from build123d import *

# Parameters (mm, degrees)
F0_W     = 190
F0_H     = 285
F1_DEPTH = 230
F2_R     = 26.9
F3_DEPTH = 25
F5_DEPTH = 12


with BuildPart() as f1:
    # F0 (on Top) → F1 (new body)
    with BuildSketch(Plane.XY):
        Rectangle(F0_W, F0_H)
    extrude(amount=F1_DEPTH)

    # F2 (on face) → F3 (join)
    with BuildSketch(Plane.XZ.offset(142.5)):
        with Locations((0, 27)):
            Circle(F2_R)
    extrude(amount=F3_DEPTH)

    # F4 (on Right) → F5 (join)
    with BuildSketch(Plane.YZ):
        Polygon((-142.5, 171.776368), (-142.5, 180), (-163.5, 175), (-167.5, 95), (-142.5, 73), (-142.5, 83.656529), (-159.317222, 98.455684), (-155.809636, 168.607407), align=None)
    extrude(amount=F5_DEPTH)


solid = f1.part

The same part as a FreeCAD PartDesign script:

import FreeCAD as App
import Part
import Sketcher
from FreeCAD import Vector
Q = App.Units.Quantity

doc = App.newDocument("Part")
params = doc.addObject("Spreadsheet::Sheet", "Params")
for row, (alias, value) in enumerate([
    ("sketch1_width", "190 mm"),
    ("sketch1_height", "285 mm"),
    ("pad1_length", "230 mm"),
    ("sketch2_diameter", "53.8 mm"),
    ("pad2_length", "25 mm"),
    ("pad3_length", "12 mm"),
], start=1):
    params.set(f"A{row}", alias)
    params.set(f"B{row}", "=" + value)
    params.setAlias(f"B{row}", alias)

body = doc.addObject("PartDesign::Body", "Body")

# Sketch on XY plane
sketch1 = body.newObject("Sketcher::SketchObject", "Sketch")
sketch1.AttachmentSupport = (doc.getObject("XY_Plane"), [""])
sketch1.MapMode = "FlatFace"
sketch1.addGeometry([
    Part.LineSegment(Vector(-95, 142.5, 0), Vector(-95, -142.5, 0)),
    Part.LineSegment(Vector(-95, -142.5, 0), Vector(95, -142.5, 0)),
    Part.LineSegment(Vector(95, -142.5, 0), Vector(95, 142.5, 0)),
    Part.LineSegment(Vector(95, 142.5, 0), Vector(-95, 142.5, 0)),
], False)
sketch1.addConstraint([
    Sketcher.Constraint("Coincident", 0, 2, 1, 1),
    Sketcher.Constraint("Coincident", 1, 2, 2, 1),
    Sketcher.Constraint("Coincident", 2, 2, 3, 1),
    Sketcher.Constraint("Coincident", 3, 2, 0, 1),
    Sketcher.Constraint("Vertical", 0),
    Sketcher.Constraint("Horizontal", 1),
    Sketcher.Constraint("Vertical", 2),
    Sketcher.Constraint("Horizontal", 3),
    Sketcher.Constraint("Symmetric", 0, 2, 2, 2, -1, 1),
    Sketcher.Constraint("DistanceX", 1, 1, 1, 2, Q("190 mm")),
    Sketcher.Constraint("DistanceY", 0, 2, 0, 1, Q("285 mm")),
])
sketch1.setExpression("Constraints[9]", "Params.sketch1_width")
sketch1.setExpression("Constraints[10]", "Params.sketch1_height")
pad1 = body.newObject("PartDesign::Pad", "Pad")
pad1.Profile = sketch1
pad1.setExpression("Length", "Params.pad1_length")

# Sketch on XZ plane
sketch2 = body.newObject("Sketcher::SketchObject", "Sketch001")
sketch2.AttachmentSupport = (doc.getObject("XZ_Plane"), [""])
sketch2.MapMode = "FlatFace"
sketch2.AttachmentOffset = App.Placement(Vector(0, 0, 142.5), App.Rotation())
sketch2.addGeometry(Part.Circle(Vector(0, 27, 0), Vector(0, 0, 1), 26.9), False)
sketch2.addConstraint([
    Sketcher.Constraint("PointOnObject", 0, 3, -2),
    Sketcher.Constraint("Diameter", 0, Q("53.8 mm")),
    Sketcher.Constraint("DistanceY", -1, 1, 0, 3, Q("27 mm")),
])
sketch2.setExpression("Constraints[1]", "Params.sketch2_diameter")
pad2 = body.newObject("PartDesign::Pad", "Pad001")
pad2.Profile = sketch2
pad2.setExpression("Length", "Params.pad2_length")

# Sketch on YZ plane
sketch3 = body.newObject("Sketcher::SketchObject", "Sketch002")
sketch3.AttachmentSupport = (doc.getObject("YZ_Plane"), [""])
sketch3.MapMode = "FlatFace"
sketch3.addGeometry([
    Part.LineSegment(Vector(-142.5, 171.776368, 0), Vector(-142.5, 180, 0)),  # 0
    Part.LineSegment(Vector(-142.5, 180, 0), Vector(-163.5, 175, 0)),  # 1
    Part.LineSegment(Vector(-163.5, 175, 0), Vector(-167.5, 95, 0)),  # 2
    Part.LineSegment(Vector(-167.5, 95, 0), Vector(-142.5, 73, 0)),  # 3
    Part.LineSegment(Vector(-142.5, 73, 0), Vector(-142.5, 83.656529, 0)),  # 4
    Part.LineSegment(Vector(-142.5, 83.656529, 0), Vector(-159.317222, 98.455684, 0)),  # 5
    Part.LineSegment(Vector(-159.317222, 98.455684, 0), Vector(-155.809636, 168.607407, 0)),  # 6
    Part.LineSegment(Vector(-155.809636, 168.607407, 0), Vector(-142.5, 171.776368, 0)),  # 7
], False)
sketch3.addConstraint([
    Sketcher.Constraint("Coincident", 0, 2, 1, 1),
    Sketcher.Constraint("Coincident", 1, 2, 2, 1),
    Sketcher.Constraint("Coincident", 2, 2, 3, 1),
    Sketcher.Constraint("Coincident", 3, 2, 4, 1),
    Sketcher.Constraint("Coincident", 4, 2, 5, 1),
    Sketcher.Constraint("Coincident", 5, 2, 6, 1),
    Sketcher.Constraint("Coincident", 6, 2, 7, 1),
    Sketcher.Constraint("Coincident", 7, 2, 0, 1),
    Sketcher.Constraint("Vertical", 0),
    Sketcher.Constraint("Vertical", 4),
    Sketcher.Constraint("Parallel", 3, 5),
    Sketcher.Constraint("Parallel", 2, 6),
    Sketcher.Constraint("Parallel", 1, 7),
    Sketcher.Constraint("Vertical", 0, 2, 3, 2),
    Sketcher.Constraint("DistanceY", -1, 1, 0, 2, Q("180 mm")),
    Sketcher.Constraint("DistanceY", -1, 1, 1, 2, Q("175 mm")),
    Sketcher.Constraint("DistanceY", -1, 1, 2, 2, Q("95 mm")),
    Sketcher.Constraint("DistanceY", -1, 1, 3, 2, Q("73 mm")),
    Sketcher.Constraint("DistanceX", 1, 2, 0, 2, Q("21 mm")),
    Sketcher.Constraint("DistanceX", 2, 2, 1, 2, Q("4 mm")),
    Sketcher.Constraint("DistanceX", 0, 2, -1, 1, Q("142.5 mm")),
    Sketcher.Constraint("DistanceY", 4, 1, 4, 2, Q("10.656529 mm")),
    Sketcher.Constraint("Distance", 5, Q("22.40165 mm")),
    Sketcher.Constraint("DistanceY", 0, 1, 0, 2, Q("8.223632 mm")),
])
pad3 = body.newObject("PartDesign::Pad", "Pad002")
pad3.Profile = sketch3
pad3.setExpression("Length", "Params.pad3_length")

doc.recompute()
